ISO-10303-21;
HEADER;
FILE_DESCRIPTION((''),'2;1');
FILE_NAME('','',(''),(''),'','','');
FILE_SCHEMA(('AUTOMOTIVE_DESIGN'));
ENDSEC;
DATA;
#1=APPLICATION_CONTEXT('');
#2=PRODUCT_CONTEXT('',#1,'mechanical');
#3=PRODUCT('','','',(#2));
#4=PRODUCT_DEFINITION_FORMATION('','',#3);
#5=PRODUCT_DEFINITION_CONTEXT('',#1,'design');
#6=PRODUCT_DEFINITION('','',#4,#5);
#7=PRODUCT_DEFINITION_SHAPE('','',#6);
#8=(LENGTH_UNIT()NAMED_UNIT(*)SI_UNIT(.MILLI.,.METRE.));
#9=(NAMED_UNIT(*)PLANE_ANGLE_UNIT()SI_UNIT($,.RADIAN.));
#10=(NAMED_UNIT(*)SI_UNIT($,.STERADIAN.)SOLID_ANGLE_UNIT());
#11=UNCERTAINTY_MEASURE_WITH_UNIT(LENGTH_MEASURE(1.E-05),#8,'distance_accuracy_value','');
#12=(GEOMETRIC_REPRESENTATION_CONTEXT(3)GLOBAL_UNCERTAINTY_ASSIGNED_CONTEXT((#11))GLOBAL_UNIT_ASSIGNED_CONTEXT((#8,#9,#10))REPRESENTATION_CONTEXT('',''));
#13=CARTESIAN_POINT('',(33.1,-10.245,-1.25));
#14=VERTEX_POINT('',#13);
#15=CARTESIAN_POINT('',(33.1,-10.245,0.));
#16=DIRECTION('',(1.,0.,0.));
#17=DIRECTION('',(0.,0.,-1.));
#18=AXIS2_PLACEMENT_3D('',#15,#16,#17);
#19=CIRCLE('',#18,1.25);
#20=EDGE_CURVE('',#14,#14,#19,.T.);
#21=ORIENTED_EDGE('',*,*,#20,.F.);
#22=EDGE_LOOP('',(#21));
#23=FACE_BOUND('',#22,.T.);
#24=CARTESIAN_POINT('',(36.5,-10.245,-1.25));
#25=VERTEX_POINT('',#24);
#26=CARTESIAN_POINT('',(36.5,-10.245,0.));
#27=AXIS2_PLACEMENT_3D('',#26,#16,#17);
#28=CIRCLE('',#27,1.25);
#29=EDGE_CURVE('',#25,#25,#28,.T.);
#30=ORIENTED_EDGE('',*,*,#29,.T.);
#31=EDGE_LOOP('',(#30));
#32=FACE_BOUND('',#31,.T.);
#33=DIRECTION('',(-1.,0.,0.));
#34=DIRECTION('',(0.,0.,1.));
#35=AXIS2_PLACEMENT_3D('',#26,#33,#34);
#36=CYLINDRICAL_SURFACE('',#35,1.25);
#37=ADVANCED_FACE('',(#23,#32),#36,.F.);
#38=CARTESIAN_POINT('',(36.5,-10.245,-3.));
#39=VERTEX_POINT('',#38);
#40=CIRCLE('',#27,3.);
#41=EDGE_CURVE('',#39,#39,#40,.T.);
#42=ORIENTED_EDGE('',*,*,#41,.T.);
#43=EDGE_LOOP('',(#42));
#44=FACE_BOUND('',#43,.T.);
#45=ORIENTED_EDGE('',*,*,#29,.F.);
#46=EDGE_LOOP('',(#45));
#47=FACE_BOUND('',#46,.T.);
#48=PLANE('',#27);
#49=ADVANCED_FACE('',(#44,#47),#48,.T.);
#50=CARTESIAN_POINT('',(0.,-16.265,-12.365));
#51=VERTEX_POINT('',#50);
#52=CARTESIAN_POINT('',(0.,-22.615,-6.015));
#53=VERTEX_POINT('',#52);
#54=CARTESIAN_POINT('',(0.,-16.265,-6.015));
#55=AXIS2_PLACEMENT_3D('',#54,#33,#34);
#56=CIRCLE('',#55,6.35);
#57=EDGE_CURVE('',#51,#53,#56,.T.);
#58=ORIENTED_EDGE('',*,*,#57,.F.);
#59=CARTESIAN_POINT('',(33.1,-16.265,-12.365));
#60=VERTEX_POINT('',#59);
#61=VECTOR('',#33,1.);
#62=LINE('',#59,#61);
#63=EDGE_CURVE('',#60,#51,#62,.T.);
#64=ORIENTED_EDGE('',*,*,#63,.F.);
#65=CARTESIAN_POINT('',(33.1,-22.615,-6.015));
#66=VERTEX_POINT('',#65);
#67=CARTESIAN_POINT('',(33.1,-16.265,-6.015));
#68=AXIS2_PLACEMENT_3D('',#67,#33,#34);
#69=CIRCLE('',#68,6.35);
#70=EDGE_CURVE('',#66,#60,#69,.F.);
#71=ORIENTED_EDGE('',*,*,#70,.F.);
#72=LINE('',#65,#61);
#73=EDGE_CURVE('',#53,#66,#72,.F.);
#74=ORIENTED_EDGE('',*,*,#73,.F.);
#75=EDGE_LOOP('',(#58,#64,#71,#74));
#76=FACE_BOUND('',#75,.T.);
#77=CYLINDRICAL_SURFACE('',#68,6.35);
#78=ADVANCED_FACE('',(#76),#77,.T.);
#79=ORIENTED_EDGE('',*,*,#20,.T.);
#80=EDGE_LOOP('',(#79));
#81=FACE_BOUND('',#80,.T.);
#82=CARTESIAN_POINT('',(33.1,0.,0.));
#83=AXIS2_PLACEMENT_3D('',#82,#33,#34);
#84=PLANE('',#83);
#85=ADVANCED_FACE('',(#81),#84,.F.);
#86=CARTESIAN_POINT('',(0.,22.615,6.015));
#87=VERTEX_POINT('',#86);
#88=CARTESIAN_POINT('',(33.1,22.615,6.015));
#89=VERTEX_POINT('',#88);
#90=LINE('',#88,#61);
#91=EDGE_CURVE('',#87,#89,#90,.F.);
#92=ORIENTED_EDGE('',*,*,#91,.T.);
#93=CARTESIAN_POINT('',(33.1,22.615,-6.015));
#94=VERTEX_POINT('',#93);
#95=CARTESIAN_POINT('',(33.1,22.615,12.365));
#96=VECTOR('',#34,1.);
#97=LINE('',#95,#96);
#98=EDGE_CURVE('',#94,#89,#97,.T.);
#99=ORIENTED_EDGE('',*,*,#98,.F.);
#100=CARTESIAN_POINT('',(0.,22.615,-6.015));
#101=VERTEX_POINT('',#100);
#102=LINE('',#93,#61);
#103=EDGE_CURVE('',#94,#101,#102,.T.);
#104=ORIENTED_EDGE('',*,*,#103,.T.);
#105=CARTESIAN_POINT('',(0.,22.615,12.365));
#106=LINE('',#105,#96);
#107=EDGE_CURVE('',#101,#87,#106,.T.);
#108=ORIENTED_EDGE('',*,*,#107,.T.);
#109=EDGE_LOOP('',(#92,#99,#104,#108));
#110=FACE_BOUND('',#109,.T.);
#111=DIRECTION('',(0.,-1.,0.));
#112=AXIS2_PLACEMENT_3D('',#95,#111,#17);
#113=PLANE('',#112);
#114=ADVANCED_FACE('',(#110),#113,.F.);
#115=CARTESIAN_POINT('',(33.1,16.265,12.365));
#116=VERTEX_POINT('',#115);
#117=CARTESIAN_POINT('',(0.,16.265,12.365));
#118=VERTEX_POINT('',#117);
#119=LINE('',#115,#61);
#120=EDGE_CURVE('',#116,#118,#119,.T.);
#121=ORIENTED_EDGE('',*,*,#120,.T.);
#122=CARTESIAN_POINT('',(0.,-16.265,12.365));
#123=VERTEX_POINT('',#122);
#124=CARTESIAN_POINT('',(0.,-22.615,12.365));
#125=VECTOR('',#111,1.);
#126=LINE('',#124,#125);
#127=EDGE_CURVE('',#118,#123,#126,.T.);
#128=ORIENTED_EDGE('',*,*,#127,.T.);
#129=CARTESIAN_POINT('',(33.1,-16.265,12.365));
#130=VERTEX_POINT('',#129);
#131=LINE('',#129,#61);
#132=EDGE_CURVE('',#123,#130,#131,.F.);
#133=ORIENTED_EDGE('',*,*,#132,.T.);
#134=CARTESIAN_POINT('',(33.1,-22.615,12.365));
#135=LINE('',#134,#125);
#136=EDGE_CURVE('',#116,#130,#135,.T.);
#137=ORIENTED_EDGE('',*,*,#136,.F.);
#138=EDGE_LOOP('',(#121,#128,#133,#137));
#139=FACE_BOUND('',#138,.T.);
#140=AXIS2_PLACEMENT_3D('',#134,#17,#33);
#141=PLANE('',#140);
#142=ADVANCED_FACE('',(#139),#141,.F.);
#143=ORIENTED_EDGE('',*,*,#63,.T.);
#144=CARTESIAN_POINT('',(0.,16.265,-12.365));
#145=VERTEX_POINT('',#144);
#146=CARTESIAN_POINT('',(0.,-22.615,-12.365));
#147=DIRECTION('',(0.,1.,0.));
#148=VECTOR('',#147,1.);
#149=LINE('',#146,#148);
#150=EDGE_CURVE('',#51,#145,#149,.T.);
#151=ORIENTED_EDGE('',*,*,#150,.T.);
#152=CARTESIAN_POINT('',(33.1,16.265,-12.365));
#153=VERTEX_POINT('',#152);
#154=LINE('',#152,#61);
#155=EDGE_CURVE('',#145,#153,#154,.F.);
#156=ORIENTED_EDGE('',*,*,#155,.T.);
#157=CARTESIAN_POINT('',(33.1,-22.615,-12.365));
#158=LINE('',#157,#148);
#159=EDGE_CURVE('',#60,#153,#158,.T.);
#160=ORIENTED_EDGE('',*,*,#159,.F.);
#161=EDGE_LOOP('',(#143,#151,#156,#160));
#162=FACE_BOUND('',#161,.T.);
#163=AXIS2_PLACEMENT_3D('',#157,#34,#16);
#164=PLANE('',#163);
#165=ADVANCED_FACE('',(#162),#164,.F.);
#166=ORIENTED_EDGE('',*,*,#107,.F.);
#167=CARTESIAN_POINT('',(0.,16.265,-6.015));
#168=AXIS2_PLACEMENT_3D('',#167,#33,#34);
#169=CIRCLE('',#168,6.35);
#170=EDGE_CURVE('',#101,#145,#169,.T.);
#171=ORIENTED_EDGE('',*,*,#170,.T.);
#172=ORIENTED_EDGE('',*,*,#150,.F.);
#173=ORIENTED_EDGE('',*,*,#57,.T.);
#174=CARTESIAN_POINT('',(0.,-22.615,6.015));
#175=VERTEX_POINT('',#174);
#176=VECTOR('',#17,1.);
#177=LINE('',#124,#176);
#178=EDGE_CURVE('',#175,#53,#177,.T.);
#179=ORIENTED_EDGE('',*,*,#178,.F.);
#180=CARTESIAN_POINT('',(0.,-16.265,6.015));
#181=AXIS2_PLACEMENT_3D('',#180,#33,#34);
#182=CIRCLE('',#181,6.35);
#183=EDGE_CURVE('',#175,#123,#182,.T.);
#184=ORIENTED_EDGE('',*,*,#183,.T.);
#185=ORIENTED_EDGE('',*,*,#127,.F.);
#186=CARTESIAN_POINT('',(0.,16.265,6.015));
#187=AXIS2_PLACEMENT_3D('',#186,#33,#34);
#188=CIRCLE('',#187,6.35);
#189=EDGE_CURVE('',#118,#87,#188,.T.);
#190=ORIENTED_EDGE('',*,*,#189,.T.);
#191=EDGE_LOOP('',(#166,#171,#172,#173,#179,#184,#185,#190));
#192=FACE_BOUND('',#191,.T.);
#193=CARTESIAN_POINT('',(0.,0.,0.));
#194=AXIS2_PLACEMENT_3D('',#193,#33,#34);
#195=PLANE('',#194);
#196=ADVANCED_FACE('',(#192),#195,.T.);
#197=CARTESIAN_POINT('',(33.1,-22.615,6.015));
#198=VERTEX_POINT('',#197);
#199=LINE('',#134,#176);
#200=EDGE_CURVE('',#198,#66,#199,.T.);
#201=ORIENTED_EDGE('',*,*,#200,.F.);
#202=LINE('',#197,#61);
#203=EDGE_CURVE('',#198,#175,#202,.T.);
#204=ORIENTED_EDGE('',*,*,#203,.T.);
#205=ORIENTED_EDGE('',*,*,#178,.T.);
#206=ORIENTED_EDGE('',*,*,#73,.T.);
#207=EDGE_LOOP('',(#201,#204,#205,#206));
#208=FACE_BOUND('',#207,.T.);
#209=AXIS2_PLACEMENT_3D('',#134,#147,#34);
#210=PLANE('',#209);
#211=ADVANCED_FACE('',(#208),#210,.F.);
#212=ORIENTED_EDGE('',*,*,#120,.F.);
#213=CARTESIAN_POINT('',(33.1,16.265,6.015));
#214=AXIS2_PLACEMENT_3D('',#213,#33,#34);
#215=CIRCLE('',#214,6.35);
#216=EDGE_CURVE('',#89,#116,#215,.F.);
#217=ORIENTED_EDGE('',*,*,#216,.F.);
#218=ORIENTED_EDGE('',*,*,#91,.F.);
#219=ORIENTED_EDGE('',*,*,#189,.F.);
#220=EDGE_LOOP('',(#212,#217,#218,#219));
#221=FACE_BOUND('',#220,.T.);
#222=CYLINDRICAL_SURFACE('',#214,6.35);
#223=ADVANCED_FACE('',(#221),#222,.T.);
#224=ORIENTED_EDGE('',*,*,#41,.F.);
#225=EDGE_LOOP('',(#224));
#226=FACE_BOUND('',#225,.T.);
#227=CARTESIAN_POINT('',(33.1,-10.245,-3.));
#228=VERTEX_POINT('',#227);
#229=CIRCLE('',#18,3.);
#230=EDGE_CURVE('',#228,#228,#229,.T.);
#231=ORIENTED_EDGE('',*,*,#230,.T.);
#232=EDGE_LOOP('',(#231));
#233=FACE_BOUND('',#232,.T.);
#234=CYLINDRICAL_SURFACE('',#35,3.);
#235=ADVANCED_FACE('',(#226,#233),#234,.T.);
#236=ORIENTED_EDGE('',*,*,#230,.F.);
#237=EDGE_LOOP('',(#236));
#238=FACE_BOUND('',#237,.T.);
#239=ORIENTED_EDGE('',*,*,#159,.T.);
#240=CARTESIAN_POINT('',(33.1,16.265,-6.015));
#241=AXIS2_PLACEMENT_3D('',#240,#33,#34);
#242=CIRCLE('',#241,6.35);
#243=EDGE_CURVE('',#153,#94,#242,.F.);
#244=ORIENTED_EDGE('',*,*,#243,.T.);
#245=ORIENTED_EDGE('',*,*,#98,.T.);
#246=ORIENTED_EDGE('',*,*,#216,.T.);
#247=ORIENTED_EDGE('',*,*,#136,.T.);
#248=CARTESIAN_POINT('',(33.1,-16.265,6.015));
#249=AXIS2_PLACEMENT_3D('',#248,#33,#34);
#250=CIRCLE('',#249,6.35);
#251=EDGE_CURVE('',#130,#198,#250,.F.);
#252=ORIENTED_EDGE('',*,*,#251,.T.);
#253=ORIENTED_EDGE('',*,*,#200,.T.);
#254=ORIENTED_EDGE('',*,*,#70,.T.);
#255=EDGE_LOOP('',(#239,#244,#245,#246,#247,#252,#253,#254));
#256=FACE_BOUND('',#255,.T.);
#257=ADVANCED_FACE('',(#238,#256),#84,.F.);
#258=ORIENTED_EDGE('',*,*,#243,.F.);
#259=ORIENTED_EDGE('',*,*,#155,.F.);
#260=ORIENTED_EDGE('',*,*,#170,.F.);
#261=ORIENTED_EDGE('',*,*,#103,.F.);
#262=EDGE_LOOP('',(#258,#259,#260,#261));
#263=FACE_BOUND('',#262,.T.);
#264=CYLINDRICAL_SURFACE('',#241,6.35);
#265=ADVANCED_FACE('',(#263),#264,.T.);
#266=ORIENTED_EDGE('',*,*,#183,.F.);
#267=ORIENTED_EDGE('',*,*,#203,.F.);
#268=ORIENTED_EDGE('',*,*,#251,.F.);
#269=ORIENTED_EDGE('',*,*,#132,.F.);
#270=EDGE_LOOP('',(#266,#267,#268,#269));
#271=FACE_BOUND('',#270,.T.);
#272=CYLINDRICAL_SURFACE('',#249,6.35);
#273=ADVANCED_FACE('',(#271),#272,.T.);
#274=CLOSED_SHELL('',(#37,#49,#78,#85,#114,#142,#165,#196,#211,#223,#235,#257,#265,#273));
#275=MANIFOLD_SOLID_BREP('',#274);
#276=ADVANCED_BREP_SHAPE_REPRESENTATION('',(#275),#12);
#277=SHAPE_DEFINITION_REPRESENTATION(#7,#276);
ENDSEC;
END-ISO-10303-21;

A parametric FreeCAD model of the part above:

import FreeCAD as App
import Part
import Sketcher
from FreeCAD import Vector
Q = App.Units.Quantity


def edges_at(feature, points):
    """Names of the edges that pass closest to the given points."""
    edges = feature.Shape.Edges
    near = lambda p: min(range(len(edges)), key=lambda i: edges[i].distToShape(Part.Vertex(*p))[0])
    return sorted({f"Edge{near(p) + 1}" for p in points})

doc = App.newDocument("Part")
body = doc.addObject("PartDesign::Body", "Body")

sketch1 = body.newObject("Sketcher::SketchObject", "Sketch")
sketch1.AttachmentSupport = (doc.getObject("YZ_Plane"), [""])
sketch1.MapMode = "FlatFace"
sketch1.addGeometry([
    Part.LineSegment(Vector(23, 12, 0), Vector(-23, 12, 0)),
    Part.LineSegment(Vector(-23, 12, 0), Vector(-23, -12, 0)),
    Part.LineSegment(Vector(-23, -12, 0), Vector(23, -12, 0)),
    Part.LineSegment(Vector(23, -12, 0), Vector(23, 12, 0)),
], False)
sketch1.addConstraint([
    Sketcher.Constraint("Coincident", 0, 2, 1, 1),
    Sketcher.Constraint("Coincident", 1, 2, 2, 1),
    Sketcher.Constraint("Coincident", 2, 2, 3, 1),
    Sketcher.Constraint("Coincident", 3, 2, 0, 1),
    Sketcher.Constraint("Horizontal", 0),
    Sketcher.Constraint("Vertical", 1),
    Sketcher.Constraint("Horizontal", 2),
    Sketcher.Constraint("Vertical", 3),
    Sketcher.Constraint("Symmetric", 0, 2, 2, 2, -1, 1),
    Sketcher.Constraint("DistanceX", 0, 2, 0, 1, Q("45.23 mm")),
    Sketcher.Constraint("DistanceY", 1, 2, 1, 1, Q("24.73 mm")),
])
pad1 = body.newObject("PartDesign::Pad", "Pad")
pad1.Profile = sketch1
pad1.Length = 33.1

sketch2 = body.newObject("Sketcher::SketchObject", "Sketch001")
sketch2.AttachmentSupport = (doc.getObject("YZ_Plane"), [""])
sketch2.MapMode = "FlatFace"
sketch2.AttachmentOffset = App.Placement(Vector(0, 0, 33.1), App.Rotation())
sketch2.addGeometry([
    Part.Circle(Vector(-10.2, 0, 0), Vector(0, 0, 1), 3),
    Part.Circle(Vector(-10.2, 0, 0), Vector(0, 0, 1), 1.2),
], False)
sketch2.addConstraint([
    Sketcher.Constraint("Coincident", 1, 3, 0, 3),
    Sketcher.Constraint("PointOnObject", 0, 3, -1),
    Sketcher.Constraint("Diameter", 0, Q("6 mm")),
    Sketcher.Constraint("Diameter", 1, Q("2.5 mm")),
    Sketcher.Constraint("DistanceX", 0, 3, -1, 1, Q("10.245 mm")),
])
pad2 = body.newObject("PartDesign::Pad", "Pad001")
pad2.Profile = sketch2
pad2.Length = 3.4
doc.recompute()

fillet = body.newObject("PartDesign::Fillet", "Fillet")
fillet.Base = (pad2, edges_at(pad2, [
    (16.55, -22.615, -12.365),
    (16.55, -22.615, 12.365),
    (16.55, 22.615, 12.365),
    (16.55, 22.615, -12.365),
]))
fillet.Radius = 6.35

doc.recompute()
